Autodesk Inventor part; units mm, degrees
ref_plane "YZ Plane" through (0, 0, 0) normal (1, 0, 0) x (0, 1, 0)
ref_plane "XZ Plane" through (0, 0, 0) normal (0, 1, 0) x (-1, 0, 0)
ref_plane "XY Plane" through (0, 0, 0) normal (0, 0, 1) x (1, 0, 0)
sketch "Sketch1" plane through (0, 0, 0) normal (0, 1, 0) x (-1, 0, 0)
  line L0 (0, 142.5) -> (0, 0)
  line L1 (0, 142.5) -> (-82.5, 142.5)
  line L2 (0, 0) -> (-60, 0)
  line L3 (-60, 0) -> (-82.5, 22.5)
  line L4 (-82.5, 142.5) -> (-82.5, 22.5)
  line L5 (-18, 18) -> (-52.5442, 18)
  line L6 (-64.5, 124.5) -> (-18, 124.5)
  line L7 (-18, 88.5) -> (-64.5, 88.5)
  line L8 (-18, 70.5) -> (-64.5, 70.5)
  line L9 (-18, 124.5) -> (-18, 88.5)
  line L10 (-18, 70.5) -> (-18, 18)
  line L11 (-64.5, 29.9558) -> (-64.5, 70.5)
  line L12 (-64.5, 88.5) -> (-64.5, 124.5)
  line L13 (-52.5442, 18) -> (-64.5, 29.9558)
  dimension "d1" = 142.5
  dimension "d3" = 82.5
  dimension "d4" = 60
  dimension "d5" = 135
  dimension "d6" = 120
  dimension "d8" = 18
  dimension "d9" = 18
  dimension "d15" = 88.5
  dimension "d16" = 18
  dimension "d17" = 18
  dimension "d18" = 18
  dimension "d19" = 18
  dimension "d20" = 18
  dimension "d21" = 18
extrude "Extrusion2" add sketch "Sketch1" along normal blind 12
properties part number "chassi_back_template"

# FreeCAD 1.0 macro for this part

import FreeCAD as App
import Part
import Sketcher
from FreeCAD import Vector
Q = App.Units.Quantity

doc = App.newDocument("Part")
body = doc.addObject("PartDesign::Body", "Body")

# Sketch on XZ plane
sketch1 = body.newObject("Sketcher::SketchObject", "Sketch")
sketch1.AttachmentSupport = (doc.getObject("XZ_Plane"), [""])
sketch1.MapMode = "FlatFace"
sketch1.addGeometry([
    Part.LineSegment(Vector(0, 0, 0), Vector(0, 142, 0)),  # 0
    Part.LineSegment(Vector(0, 142, 0), Vector(82, 142, 0)),  # 1
    Part.LineSegment(Vector(82, 142, 0), Vector(82, 22, 0)),  # 2
    Part.LineSegment(Vector(82, 22, 0), Vector(60, 0, 0)),  # 3
    Part.LineSegment(Vector(60, 0, 0), Vector(0, 0, 0)),  # 4
    Part.LineSegment(Vector(18, 70, 0), Vector(18, 18, 0)),  # 5
    Part.LineSegment(Vector(18, 18, 0), Vector(53, 18, 0)),  # 6
    Part.LineSegment(Vector(53, 18, 0), Vector(64, 30, 0)),  # 7
    Part.LineSegment(Vector(64, 30, 0), Vector(64, 70, 0)),  # 8
    Part.LineSegment(Vector(64, 70, 0), Vector(18, 70, 0)),  # 9
    Part.LineSegment(Vector(64, 88, 0), Vector(64, 124, 0)),  # 10
    Part.LineSegment(Vector(64, 124, 0), Vector(18, 124, 0)),  # 11
    Part.LineSegment(Vector(18, 124, 0), Vector(18, 88, 0)),  # 12
    Part.LineSegment(Vector(18, 88, 0), Vector(64, 88, 0)),  # 13
], False)
sketch1.addConstraint([
    Sketcher.Constraint("Coincident", 0, 2, 1, 1),
    Sketcher.Constraint("Coincident", 1, 2, 2, 1),
    Sketcher.Constraint("Coincident", 2, 2, 3, 1),
    Sketcher.Constraint("Coincident", 3, 2, 4, 1),
    Sketcher.Constraint("Coincident", 4, 2, 0, 1),
    Sketcher.Constraint("Coincident", 5, 2, 6, 1),
    Sketcher.Constraint("Coincident", 6, 2, 7, 1),
    Sketcher.Constraint("Coincident", 7, 2, 8, 1),
    Sketcher.Constraint("Coincident", 8, 2, 9, 1),
    Sketcher.Constraint("Coincident", 9, 2, 5, 1),
    Sketcher.Constraint("Coincident", 10, 2, 11, 1),
    Sketcher.Constraint("Coincident", 11, 2, 12, 1),
    Sketcher.Constraint("Coincident", 12, 2, 13, 1),
    Sketcher.Constraint("Coincident", 13, 2, 10, 1),
    Sketcher.Constraint("Vertical", 0),
    Sketcher.Constraint("Horizontal", 1),
    Sketcher.Constraint("Vertical", 2),
    Sketcher.Constraint("Horizontal", 4),
    Sketcher.Constraint("Vertical", 5),
    Sketcher.Constraint("Horizontal", 6),
    Sketcher.Constraint("Vertical", 8),
    Sketcher.Constraint("Horizontal", 9),
    Sketcher.Constraint("Vertical", 10),
    Sketcher.Constraint("Horizontal", 11),
    Sketcher.Constraint("Vertical", 12),
    Sketcher.Constraint("Horizontal", 13),
    Sketcher.Constraint("Coincident", 4, 2, -1, 1),
    Sketcher.Constraint("Parallel", 3, 7),
    Sketcher.Constraint("Vertical", 8, 2, 10, 2),
    Sketcher.Constraint("Vertical", 9, 2, 11, 2),
    Sketcher.Constraint("DistanceX", 4, 2, 4, 1, Q("60 mm")),
    Sketcher.Constraint("DistanceY", 2, 2, 2, 1, Q("120 mm")),
    Sketcher.Constraint("Angle", 3, Q("-135 deg")),
    Sketcher.Constraint("DistanceX", 1, 1, 1, 2, Q("82.5 mm")),
    Sketcher.Constraint("DistanceX", -1, 1, 5, 2, Q("18 mm")),
    Sketcher.Constraint("DistanceY", -1, 1, 5, 2, Q("18 mm")),
    Sketcher.Constraint("DistanceX", 7, 2, 2, 2, Q("18 mm")),
    Sketcher.Constraint("DistanceY", 10, 2, 1, 2, Q("18 mm")),
    Sketcher.Constraint("DistanceY", 9, 2, 12, 2, Q("18 mm")),
    Sketcher.Constraint("DistanceY", -1, 1, 12, 2, Q("88.5 mm")),
    Sketcher.Constraint("Distance", 7, Q("16.908 mm")),
])
pad1 = body.newObject("PartDesign::Pad", "Pad")
pad1.Profile = sketch1
pad1.Length = 12
pad1.Reversed = True

doc.recompute()
